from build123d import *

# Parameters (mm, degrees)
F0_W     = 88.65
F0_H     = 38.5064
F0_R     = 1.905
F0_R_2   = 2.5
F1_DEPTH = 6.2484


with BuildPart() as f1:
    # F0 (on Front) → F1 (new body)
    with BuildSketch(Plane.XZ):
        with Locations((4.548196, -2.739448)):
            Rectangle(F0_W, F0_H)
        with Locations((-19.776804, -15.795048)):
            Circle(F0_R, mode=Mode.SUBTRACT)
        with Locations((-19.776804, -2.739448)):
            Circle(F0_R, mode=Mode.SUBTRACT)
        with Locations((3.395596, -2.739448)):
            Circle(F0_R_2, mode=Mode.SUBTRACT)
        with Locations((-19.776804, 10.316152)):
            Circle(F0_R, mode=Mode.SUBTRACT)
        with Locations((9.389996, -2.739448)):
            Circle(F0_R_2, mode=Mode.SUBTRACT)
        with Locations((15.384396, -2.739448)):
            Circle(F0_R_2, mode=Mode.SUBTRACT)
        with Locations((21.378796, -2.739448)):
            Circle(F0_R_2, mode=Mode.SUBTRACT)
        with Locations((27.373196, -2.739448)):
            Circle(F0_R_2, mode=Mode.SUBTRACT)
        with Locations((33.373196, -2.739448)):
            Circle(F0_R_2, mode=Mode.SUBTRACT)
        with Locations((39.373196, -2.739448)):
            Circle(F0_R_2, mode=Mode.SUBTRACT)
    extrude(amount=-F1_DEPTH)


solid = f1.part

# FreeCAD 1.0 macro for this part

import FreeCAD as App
import Part
import Sketcher
Q = App.Units.Quantity


def add_polygon(sketch, points):
    """Adds a closed chain of lines whose ends are joined by coincident constraints."""
    first, n = sketch.GeometryCount, len(points)
    for a, b in zip(points, points[1:] + points[:1]):
        sketch.addGeometry(Part.LineSegment(App.Vector(*a, 0), App.Vector(*b, 0)), False)
    for i in range(n):
        sketch.addConstraint(Sketcher.Constraint("Coincident", first + i, 2, first + (i + 1) % n, 1))

doc = App.newDocument("Part")
body = doc.addObject("PartDesign::Body", "Body")

# Sketch on XZ plane
sketch1 = body.newObject("Sketcher::SketchObject", "Sketch")
sketch1.AttachmentSupport = (doc.getObject("XZ_Plane"), [""])
sketch1.MapMode = "FlatFace"
add_polygon(sketch1, [(-39.8, 16.5), (-39.8, -22), (48.9, -22), (48.9, 16.5)])  # lines 0-3
sketch1.addGeometry(Part.Circle(App.Vector(-19.8, -15.8, 0), App.Vector(0, 0, 1), 1.9), False)  # 4
sketch1.addGeometry(Part.Circle(App.Vector(-19.8, -2.7, 0), App.Vector(0, 0, 1), 1.9), False)  # 5
sketch1.addGeometry(Part.Circle(App.Vector(3.4, -2.7, 0), App.Vector(0, 0, 1), 2.5), False)  # 6
sketch1.addGeometry(Part.Circle(App.Vector(9.4, -2.7, 0), App.Vector(0, 0, 1), 2.5), False)  # 7
sketch1.addGeometry(Part.Circle(App.Vector(-19.8, 10.3, 0), App.Vector(0, 0, 1), 1.9), False)  # 8
sketch1.addGeometry(Part.Circle(App.Vector(15.4, -2.7, 0), App.Vector(0, 0, 1), 2.5), False)  # 9
sketch1.addGeometry(Part.Circle(App.Vector(21.4, -2.7, 0), App.Vector(0, 0, 1), 2.5), False)  # 10
sketch1.addGeometry(Part.Circle(App.Vector(27.4, -2.7, 0), App.Vector(0, 0, 1), 2.5), False)  # 11
sketch1.addGeometry(Part.Circle(App.Vector(33.4, -2.7, 0), App.Vector(0, 0, 1), 2.5), False)  # 12
sketch1.addGeometry(Part.Circle(App.Vector(39.4, -2.7, 0), App.Vector(0, 0, 1), 2.5), False)  # 13
sketch1.addConstraint(Sketcher.Constraint("Vertical", 0))
sketch1.addConstraint(Sketcher.Constraint("Horizontal", 1))
sketch1.addConstraint(Sketcher.Constraint("Vertical", 2))
sketch1.addConstraint(Sketcher.Constraint("Horizontal", 3))
sketch1.addConstraint(Sketcher.Constraint("Equal", 4, 5))
sketch1.addConstraint(Sketcher.Constraint("Equal", 6, 7))
sketch1.addConstraint(Sketcher.Constraint("Equal", 5, 8))
sketch1.addConstraint(Sketcher.Constraint("Equal", 7, 9))
sketch1.addConstraint(Sketcher.Constraint("Equal", 9, 10))
sketch1.addConstraint(Sketcher.Constraint("Equal", 10, 11))
sketch1.addConstraint(Sketcher.Constraint("Equal", 11, 12))
sketch1.addConstraint(Sketcher.Constraint("Equal", 12, 13))
sketch1.addConstraint(Sketcher.Constraint("Horizontal", 5, 3, 6, 3))
sketch1.addConstraint(Sketcher.Constraint("Horizontal", 6, 3, 7, 3))
sketch1.addConstraint(Sketcher.Constraint("Horizontal", 7, 3, 9, 3))
sketch1.addConstraint(Sketcher.Constraint("Horizontal", 9, 3, 10, 3))
sketch1.addConstraint(Sketcher.Constraint("Horizontal", 10, 3, 11, 3))
sketch1.addConstraint(Sketcher.Constraint("Horizontal", 11, 3, 12, 3))
sketch1.addConstraint(Sketcher.Constraint("Horizontal", 12, 3, 13, 3))
sketch1.addConstraint(Sketcher.Constraint("Vertical", 4, 3, 5, 3))
sketch1.addConstraint(Sketcher.Constraint("Vertical", 5, 3, 8, 3))
sketch1.addConstraint(Sketcher.Constraint("Diameter", 4, Q("0.15 in")))
sketch1.addConstraint(Sketcher.Constraint("Diameter", 6, 5.0))
sketch1.addConstraint(Sketcher.Constraint("DistanceY", 0, 2, 0, 1, Q("1.516 in")))
sketch1.addConstraint(Sketcher.Constraint("DistanceY", 4, 3, 5, 3, Q("0.514 in")))
sketch1.addConstraint(Sketcher.Constraint("DistanceX", 6, 3, 7, 3, Q("0.236 in")))
sketch1.addConstraint(Sketcher.Constraint("DistanceY", 5, 3, 8, 3, Q("0.514 in")))
sketch1.addConstraint(Sketcher.Constraint("DistanceX", 7, 3, 9, 3, Q("0.236 in")))
sketch1.addConstraint(Sketcher.Constraint("DistanceX", 9, 3, 10, 3, Q("0.236 in")))
sketch1.addConstraint(Sketcher.Constraint("DistanceX", 10, 3, 11, 3, Q("0.236 in")))
sketch1.addConstraint(Sketcher.Constraint("DistanceY", 0, 2, 4, 3, Q("0.244 in")))
sketch1.addConstraint(Sketcher.Constraint("DistanceX", 1, 1, 1, 2, 88.65))
sketch1.addConstraint(Sketcher.Constraint("DistanceX", 5, 3, 6, 3, 23.1724))
sketch1.addConstraint(Sketcher.Constraint("DistanceX", 11, 3, 12, 3, 6.0))
sketch1.addConstraint(Sketcher.Constraint("DistanceX", 12, 3, 13, 3, 6.0))
sketch1.addConstraint(Sketcher.Constraint("DistanceX", 0, 2, 4, 3, 20.0))
sketch1.addConstraint(Sketcher.Constraint("DistanceY", -1, 1, 2, 2, 16.513752))
sketch1.addConstraint(Sketcher.Constraint("DistanceX", 4, 3, -1, 1, 19.776804))
pad1 = body.newObject("PartDesign::Pad", "Pad")
pad1.Profile = sketch1
pad1.Length = Q("0.246 in")
pad1.Reversed = True

doc.recompute()
